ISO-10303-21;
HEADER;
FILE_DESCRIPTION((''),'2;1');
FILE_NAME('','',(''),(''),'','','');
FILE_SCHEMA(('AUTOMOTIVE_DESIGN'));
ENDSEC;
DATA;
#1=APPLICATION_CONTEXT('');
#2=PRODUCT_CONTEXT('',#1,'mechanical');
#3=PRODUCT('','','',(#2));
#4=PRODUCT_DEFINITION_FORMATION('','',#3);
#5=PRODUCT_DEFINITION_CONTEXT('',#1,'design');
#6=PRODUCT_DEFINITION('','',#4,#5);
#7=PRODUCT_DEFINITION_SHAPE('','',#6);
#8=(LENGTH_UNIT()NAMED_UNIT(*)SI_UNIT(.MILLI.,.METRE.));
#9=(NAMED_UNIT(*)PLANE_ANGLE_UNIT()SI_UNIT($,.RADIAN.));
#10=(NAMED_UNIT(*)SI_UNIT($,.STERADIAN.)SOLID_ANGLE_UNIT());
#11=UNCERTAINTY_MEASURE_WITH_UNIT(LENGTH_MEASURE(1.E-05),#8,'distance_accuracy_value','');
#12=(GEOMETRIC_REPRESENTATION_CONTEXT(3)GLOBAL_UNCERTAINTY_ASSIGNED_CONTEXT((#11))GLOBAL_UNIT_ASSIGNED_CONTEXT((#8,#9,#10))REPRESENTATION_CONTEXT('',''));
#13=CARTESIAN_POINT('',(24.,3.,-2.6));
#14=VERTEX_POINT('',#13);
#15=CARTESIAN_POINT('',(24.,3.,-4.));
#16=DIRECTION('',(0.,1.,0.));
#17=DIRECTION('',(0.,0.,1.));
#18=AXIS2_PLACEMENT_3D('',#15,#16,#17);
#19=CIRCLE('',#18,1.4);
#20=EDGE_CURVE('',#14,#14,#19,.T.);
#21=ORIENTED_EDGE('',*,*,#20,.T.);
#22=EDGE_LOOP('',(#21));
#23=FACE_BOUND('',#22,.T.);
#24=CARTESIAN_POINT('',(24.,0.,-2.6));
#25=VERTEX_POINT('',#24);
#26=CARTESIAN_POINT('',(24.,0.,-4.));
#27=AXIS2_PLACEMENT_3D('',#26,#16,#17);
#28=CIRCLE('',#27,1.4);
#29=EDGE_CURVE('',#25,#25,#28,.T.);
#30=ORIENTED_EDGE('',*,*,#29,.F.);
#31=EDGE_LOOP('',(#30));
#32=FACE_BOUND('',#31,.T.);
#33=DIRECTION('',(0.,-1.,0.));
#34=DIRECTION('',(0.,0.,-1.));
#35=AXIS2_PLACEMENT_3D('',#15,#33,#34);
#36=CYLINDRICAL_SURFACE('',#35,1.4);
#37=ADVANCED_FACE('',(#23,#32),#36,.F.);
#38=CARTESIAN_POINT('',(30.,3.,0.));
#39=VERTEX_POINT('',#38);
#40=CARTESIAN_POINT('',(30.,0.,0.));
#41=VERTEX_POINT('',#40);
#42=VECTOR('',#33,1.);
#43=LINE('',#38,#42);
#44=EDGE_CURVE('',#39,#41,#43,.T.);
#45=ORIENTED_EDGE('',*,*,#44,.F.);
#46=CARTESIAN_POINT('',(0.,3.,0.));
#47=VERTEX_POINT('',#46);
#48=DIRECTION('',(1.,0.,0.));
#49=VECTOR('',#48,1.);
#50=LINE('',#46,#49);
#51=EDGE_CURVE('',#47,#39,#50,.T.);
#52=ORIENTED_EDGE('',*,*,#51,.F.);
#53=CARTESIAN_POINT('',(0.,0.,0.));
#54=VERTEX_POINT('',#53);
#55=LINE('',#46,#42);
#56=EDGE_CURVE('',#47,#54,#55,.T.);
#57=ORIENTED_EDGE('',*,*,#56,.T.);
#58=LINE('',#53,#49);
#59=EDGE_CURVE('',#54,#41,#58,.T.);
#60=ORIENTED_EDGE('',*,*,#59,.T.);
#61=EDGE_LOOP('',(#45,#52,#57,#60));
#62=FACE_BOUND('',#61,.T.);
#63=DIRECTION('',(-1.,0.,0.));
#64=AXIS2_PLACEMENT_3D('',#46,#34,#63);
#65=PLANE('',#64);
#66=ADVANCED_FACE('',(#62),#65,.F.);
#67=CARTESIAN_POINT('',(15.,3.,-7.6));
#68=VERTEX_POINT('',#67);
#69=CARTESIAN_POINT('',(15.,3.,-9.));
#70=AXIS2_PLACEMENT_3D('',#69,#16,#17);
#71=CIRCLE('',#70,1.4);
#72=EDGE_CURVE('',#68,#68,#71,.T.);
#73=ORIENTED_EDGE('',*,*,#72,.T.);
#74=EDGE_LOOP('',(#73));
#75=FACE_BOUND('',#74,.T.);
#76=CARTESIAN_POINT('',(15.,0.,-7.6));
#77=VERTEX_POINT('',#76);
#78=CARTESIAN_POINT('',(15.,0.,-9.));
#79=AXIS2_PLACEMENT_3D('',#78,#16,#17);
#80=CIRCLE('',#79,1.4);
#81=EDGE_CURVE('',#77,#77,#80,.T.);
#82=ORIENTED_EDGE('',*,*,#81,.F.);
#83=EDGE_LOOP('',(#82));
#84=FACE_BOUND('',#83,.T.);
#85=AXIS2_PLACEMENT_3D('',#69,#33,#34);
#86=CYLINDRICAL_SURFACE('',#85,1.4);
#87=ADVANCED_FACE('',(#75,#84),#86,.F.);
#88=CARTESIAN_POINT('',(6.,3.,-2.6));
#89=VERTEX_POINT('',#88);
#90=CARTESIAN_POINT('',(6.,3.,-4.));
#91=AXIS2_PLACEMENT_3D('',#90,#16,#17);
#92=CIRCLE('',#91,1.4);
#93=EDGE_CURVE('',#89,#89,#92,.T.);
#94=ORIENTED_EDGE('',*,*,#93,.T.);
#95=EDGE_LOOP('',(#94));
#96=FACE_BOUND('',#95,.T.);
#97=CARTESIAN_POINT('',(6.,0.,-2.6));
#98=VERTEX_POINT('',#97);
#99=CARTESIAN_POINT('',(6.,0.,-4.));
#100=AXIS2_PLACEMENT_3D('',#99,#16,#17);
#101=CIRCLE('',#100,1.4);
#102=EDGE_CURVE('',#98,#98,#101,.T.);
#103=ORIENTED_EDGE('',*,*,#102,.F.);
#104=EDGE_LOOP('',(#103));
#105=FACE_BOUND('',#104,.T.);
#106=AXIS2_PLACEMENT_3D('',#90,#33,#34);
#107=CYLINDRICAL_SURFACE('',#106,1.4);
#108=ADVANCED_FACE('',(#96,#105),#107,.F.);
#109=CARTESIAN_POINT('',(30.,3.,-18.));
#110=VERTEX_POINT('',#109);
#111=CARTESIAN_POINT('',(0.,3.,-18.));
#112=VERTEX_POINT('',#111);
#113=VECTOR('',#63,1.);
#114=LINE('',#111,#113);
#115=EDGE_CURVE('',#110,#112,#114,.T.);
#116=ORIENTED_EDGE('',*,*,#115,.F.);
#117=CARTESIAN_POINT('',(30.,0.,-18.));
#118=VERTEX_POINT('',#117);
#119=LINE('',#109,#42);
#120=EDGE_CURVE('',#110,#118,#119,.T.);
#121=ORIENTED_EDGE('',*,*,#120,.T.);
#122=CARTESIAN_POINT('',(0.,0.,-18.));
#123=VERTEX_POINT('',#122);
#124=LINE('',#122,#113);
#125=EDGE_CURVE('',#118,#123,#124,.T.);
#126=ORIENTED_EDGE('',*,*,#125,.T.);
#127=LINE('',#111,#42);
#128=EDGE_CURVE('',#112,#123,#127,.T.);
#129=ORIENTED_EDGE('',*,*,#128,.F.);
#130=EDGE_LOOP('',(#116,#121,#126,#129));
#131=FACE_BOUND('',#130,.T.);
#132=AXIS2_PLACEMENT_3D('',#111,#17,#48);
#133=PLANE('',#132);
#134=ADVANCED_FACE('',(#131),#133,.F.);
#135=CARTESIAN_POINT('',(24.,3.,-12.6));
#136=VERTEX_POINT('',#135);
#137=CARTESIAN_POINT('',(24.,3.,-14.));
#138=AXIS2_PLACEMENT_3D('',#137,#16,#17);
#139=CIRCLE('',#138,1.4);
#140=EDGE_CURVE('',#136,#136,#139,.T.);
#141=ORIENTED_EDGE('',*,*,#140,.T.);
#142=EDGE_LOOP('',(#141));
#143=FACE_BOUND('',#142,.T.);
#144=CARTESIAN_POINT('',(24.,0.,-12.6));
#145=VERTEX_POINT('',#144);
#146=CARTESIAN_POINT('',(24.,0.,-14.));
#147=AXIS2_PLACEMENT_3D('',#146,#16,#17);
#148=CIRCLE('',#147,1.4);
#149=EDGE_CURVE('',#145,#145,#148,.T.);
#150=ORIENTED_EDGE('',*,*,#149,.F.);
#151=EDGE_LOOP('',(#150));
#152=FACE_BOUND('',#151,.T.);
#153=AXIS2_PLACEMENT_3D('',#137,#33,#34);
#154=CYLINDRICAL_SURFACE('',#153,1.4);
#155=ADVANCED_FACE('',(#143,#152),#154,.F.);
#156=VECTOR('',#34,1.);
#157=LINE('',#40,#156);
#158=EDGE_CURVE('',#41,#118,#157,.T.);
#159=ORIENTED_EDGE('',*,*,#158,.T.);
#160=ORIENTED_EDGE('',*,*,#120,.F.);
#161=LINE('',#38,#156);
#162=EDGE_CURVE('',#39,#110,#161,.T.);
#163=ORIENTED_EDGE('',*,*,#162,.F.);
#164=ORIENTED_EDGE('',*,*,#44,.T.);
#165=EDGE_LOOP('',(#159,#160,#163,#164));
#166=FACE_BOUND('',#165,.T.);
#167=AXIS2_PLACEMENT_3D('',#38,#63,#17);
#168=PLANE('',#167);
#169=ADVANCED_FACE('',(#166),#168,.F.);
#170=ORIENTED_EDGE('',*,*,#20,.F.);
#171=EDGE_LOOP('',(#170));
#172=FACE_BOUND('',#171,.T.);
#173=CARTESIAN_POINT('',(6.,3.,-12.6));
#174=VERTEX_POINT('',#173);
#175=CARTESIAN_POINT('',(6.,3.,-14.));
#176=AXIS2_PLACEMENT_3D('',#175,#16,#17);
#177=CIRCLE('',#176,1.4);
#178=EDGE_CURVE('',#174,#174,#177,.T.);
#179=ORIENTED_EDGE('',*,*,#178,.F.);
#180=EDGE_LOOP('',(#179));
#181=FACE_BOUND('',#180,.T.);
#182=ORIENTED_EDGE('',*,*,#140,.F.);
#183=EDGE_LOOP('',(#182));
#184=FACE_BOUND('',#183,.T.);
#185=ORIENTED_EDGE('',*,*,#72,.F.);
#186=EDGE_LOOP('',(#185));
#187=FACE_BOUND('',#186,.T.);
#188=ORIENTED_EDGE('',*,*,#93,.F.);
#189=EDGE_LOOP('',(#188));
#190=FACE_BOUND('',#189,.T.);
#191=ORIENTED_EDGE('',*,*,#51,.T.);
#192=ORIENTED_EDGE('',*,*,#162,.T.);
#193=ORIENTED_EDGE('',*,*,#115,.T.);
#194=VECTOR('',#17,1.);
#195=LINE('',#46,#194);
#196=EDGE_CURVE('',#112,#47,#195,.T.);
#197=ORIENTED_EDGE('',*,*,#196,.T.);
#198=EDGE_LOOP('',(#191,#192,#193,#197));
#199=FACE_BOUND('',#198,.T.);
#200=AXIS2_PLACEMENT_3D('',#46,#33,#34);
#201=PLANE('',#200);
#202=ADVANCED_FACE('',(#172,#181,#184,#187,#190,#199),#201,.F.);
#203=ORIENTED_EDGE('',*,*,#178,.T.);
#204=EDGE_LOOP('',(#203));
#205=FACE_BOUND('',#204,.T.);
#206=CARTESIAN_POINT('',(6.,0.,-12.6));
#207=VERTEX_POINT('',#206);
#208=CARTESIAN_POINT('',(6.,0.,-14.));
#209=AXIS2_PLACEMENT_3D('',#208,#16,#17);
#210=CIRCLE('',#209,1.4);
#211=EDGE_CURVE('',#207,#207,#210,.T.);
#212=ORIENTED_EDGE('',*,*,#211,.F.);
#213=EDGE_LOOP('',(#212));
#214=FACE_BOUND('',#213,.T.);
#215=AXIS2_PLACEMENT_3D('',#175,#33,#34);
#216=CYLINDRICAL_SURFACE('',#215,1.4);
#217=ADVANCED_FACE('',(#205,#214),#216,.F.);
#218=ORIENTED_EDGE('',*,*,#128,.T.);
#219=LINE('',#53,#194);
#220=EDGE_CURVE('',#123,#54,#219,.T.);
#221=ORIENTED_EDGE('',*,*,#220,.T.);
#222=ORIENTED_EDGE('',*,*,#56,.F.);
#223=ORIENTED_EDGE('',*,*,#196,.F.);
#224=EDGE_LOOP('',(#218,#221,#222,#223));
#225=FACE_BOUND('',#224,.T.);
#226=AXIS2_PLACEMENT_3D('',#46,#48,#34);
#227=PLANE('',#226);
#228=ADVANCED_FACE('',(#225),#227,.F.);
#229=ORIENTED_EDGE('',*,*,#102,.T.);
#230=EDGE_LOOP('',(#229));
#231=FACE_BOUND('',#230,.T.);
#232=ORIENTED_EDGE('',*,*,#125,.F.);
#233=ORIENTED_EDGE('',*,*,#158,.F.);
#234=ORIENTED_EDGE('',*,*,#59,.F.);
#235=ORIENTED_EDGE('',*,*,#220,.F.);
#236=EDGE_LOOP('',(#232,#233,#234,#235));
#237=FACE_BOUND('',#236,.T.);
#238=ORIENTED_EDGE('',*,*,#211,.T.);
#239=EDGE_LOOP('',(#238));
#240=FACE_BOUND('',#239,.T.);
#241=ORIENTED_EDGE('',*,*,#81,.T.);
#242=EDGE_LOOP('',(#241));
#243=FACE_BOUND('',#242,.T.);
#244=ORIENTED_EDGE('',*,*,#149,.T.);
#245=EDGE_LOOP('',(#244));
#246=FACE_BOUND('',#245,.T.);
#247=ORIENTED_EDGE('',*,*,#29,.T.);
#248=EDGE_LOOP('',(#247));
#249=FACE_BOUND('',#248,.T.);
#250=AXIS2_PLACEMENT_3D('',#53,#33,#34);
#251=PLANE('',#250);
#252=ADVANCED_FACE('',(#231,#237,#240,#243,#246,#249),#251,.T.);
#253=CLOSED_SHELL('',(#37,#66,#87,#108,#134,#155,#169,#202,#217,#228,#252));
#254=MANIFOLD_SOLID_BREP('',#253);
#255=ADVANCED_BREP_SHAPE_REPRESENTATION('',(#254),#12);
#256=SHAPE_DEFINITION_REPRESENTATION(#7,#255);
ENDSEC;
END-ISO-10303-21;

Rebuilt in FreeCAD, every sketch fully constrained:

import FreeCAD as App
import Part
import Sketcher


def add_polygon(sketch, points):
    """Adds a closed chain of lines whose ends are joined by coincident constraints."""
    first, n = sketch.GeometryCount, len(points)
    for a, b in zip(points, points[1:] + points[:1]):
        sketch.addGeometry(Part.LineSegment(App.Vector(*a, 0), App.Vector(*b, 0)), False)
    for i in range(n):
        sketch.addConstraint(Sketcher.Constraint("Coincident", first + i, 2, first + (i + 1) % n, 1))

doc = App.newDocument("Part")
body = doc.addObject("PartDesign::Body", "Body")

# Sketch on XZ plane
sketch1 = body.newObject("Sketcher::SketchObject", "Sketch")
sketch1.AttachmentSupport = (doc.getObject("XZ_Plane"), [""])
sketch1.MapMode = "FlatFace"
add_polygon(sketch1, [(0, -18), (0, 0), (30, 0), (30, -18)])  # lines 0-3
sketch1.addGeometry(Part.Circle(App.Vector(6, -4, 0), App.Vector(0, 0, 1), 1.4), False)  # 4
sketch1.addGeometry(Part.Circle(App.Vector(24, -4, 0), App.Vector(0, 0, 1), 1.4), False)  # 5
sketch1.addGeometry(Part.Circle(App.Vector(6, -14, 0), App.Vector(0, 0, 1), 1.4), False)  # 6
sketch1.addGeometry(Part.Circle(App.Vector(15, -9, 0), App.Vector(0, 0, 1), 1.4), False)  # 7
sketch1.addGeometry(Part.Circle(App.Vector(24, -14, 0), App.Vector(0, 0, 1), 1.4), False)  # 8
sketch1.addConstraint(Sketcher.Constraint("Vertical", 0))
sketch1.addConstraint(Sketcher.Constraint("Horizontal", 1))
sketch1.addConstraint(Sketcher.Constraint("Vertical", 2))
sketch1.addConstraint(Sketcher.Constraint("Horizontal", 3))
sketch1.addConstraint(Sketcher.Constraint("Coincident", 0, 2, -1, 1))
sketch1.addConstraint(Sketcher.Constraint("Equal", 4, 5))
sketch1.addConstraint(Sketcher.Constraint("Equal", 5, 6))
sketch1.addConstraint(Sketcher.Constraint("Equal", 6, 7))
sketch1.addConstraint(Sketcher.Constraint("Equal", 7, 8))
sketch1.addConstraint(Sketcher.Constraint("Horizontal", 4, 3, 5, 3))
sketch1.addConstraint(Sketcher.Constraint("Horizontal", 6, 3, 8, 3))
sketch1.addConstraint(Sketcher.Constraint("Vertical", 4, 3, 6, 3))
sketch1.addConstraint(Sketcher.Constraint("Vertical", 5, 3, 8, 3))
sketch1.addConstraint(Sketcher.Constraint("Diameter", 4, 2.8))
sketch1.addConstraint(Sketcher.Constraint("DistanceX", 1, 1, 1, 2, 30.0))
sketch1.addConstraint(Sketcher.Constraint("DistanceY", 0, 1, 0, 2, 18.0))
sketch1.addConstraint(Sketcher.Constraint("DistanceX", -1, 1, 4, 3, 6.0))
sketch1.addConstraint(Sketcher.Constraint("DistanceY", 4, 3, -1, 1, 4.0))
sketch1.addConstraint(Sketcher.Constraint("DistanceX", -1, 1, 5, 3, 24.0))
sketch1.addConstraint(Sketcher.Constraint("DistanceY", 6, 3, -1, 1, 14.0))
sketch1.addConstraint(Sketcher.Constraint("DistanceX", -1, 1, 7, 3, 15.0))
sketch1.addConstraint(Sketcher.Constraint("DistanceY", 7, 3, -1, 1, 9.0))
pad1 = body.newObject("PartDesign::Pad", "Pad")
pad1.Profile = sketch1
pad1.Length = 3
pad1.Reversed = True

doc.recompute()
